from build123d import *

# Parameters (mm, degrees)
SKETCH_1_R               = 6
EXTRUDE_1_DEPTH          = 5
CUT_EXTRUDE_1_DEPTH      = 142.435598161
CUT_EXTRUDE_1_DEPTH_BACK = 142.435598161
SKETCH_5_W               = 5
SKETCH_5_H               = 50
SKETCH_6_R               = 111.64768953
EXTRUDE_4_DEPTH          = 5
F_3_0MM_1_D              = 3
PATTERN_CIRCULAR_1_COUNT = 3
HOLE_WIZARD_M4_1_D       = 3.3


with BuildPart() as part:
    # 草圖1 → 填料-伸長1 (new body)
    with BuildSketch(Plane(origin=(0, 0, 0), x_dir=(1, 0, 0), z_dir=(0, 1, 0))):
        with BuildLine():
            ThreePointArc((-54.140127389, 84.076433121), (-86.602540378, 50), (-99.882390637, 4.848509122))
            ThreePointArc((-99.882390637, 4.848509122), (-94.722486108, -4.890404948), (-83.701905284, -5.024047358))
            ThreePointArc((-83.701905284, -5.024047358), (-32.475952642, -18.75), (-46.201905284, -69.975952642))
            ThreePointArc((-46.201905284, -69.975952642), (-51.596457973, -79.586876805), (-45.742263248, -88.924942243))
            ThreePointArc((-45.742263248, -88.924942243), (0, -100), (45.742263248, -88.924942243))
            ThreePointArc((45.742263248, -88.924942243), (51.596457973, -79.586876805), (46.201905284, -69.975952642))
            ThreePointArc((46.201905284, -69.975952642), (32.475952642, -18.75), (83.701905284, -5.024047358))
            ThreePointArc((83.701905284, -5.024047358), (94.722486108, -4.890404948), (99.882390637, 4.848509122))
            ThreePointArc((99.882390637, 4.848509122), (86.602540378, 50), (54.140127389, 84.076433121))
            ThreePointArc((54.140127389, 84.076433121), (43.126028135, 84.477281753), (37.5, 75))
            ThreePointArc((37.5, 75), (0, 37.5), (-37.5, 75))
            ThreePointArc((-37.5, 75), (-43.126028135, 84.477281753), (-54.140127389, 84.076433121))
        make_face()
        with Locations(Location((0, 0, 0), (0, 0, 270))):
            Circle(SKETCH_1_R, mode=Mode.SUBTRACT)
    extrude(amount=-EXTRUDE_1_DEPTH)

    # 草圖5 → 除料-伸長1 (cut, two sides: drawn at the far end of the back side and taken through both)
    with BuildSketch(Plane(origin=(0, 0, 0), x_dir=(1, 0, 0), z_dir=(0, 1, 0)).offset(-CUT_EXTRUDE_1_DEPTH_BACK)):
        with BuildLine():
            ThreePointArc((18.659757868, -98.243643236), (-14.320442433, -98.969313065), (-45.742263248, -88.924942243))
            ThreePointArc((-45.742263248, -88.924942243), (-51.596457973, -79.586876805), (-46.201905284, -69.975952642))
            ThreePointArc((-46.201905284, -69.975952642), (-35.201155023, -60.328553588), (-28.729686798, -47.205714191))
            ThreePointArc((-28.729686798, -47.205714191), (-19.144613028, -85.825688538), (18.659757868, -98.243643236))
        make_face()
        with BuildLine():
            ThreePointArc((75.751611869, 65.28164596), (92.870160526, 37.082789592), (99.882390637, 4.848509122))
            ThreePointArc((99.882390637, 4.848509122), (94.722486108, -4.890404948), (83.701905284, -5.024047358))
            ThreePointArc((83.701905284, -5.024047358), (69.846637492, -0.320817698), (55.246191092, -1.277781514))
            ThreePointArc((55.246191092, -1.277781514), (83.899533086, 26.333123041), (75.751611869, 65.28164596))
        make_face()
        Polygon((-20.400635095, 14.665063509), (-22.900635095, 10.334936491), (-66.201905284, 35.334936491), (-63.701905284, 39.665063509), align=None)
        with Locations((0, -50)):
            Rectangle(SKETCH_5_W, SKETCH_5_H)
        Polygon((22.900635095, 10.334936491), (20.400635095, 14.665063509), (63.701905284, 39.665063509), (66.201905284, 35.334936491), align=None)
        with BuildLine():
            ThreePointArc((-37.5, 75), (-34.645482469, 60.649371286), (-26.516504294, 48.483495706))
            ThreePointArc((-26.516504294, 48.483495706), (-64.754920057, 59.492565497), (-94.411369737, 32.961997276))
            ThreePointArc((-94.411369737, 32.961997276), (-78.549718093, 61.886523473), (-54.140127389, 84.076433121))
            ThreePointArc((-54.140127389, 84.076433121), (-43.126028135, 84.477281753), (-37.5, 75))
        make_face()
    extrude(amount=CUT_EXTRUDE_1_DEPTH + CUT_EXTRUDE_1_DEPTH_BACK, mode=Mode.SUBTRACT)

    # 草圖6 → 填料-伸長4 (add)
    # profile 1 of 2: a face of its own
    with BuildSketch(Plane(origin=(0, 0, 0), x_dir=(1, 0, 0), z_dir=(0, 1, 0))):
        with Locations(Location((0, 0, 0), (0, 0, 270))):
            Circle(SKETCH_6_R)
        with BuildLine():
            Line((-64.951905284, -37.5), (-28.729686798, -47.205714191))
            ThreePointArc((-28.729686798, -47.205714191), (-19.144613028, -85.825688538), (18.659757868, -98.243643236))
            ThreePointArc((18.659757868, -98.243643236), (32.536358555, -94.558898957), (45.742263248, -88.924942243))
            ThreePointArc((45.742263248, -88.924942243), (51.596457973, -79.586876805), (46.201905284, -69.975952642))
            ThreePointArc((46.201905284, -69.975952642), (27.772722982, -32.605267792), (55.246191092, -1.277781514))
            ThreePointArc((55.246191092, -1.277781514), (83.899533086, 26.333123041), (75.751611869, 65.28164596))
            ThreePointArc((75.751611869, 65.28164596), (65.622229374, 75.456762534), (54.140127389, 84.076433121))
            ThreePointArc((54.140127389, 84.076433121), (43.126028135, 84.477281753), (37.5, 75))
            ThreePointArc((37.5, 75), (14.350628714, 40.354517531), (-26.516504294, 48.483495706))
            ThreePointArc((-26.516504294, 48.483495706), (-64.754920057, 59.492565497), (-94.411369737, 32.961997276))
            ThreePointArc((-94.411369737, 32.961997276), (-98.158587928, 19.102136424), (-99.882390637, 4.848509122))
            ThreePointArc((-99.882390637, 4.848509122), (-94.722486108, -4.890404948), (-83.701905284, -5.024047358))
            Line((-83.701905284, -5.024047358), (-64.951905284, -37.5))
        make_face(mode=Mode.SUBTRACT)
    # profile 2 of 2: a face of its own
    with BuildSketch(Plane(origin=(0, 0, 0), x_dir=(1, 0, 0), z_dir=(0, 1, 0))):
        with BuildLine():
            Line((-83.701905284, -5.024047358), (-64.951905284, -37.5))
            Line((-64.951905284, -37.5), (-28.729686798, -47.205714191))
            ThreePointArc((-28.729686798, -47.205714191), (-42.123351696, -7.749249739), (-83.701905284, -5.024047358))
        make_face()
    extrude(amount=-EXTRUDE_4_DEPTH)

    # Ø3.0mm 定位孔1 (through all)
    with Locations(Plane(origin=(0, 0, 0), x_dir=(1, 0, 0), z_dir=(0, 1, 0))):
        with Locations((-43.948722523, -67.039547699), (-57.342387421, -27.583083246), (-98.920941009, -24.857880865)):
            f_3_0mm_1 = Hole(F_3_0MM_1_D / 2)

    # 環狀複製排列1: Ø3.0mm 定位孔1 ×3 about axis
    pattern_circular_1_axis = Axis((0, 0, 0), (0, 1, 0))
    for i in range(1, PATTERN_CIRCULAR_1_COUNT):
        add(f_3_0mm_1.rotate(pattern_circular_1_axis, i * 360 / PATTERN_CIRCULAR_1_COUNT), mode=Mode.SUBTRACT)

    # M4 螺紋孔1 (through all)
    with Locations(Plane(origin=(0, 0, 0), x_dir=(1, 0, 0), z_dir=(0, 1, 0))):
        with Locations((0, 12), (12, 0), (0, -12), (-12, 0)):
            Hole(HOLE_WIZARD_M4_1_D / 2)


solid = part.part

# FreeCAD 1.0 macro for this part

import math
import FreeCAD as App
import Part
import Sketcher

V = App.Vector
Q = App.Units.Quantity

doc = App.newDocument("Part")
params = doc.addObject("Spreadsheet::Sheet", "Params")
for row, (alias, value) in enumerate([
    ("sketch1_diameter", "12 mm"),
    ("sketch1_radius", "100 mm"),
    ("sketch1_radius2", "37.5 mm"),
    ("pad1_length", "5 mm"),
    ("sketch2_radius", "100 mm"),
    ("sketch2_radius2", "37.5 mm"),
    ("sketch2_width", "5 mm"),
    ("sketch2_height", "50 mm"),
    ("sketch2_length", "5 mm"),
    ("sketch3_radius", "100 mm"),
    ("sketch3_radius2", "37.5 mm"),
    ("sketch3_width", "18.75 mm"),
    ("pad2_length", "5 mm"),
    ("sketch4_diameter", "3 mm"),
    ("hole_diameter", "3 mm"),
    ("sketch5_diameter", "3.3 mm"),
    ("hole2_diameter", "3.3 mm"),
], start=1):
    params.set(f"A{row}", alias)
    params.set(f"B{row}", "=" + value)
    params.setAlias(f"B{row}", alias)

body = doc.addObject("PartDesign::Body", "Body")

sketch1 = doc.addObject("Sketcher::SketchObject", "Sketch")
body.addObject(sketch1)
sketch1.AttachmentSupport = (doc.XZ_Plane, [""])
sketch1.MapMode = "FlatFace"
sketch1.addGeometry([
    Part.ArcOfCircle(Part.Circle(V(0, 0, 0), V(0, 0, 1), 100), math.radians(-177.220919), math.radians(-122.779081)),
    Part.ArcOfCircle(Part.Circle(V(-89.099633, -4.325091, 0), V(0, 0, 1), 10.795455), math.radians(60), math.radians(182.779081)),
    Part.ArcOfCircle(Part.Circle(V(-64.951905, 37.5, 0), V(0, 0, 1), 37.5), math.radians(-120), math.radians(60)),
    Part.ArcOfCircle(Part.Circle(V(-40.804178, 79.325091, 0), V(0, 0, 1), 10.795455), math.radians(117.220919), math.radians(240)),
    Part.ArcOfCircle(Part.Circle(V(0, 0, 0), V(0, 0, 1), 100), math.radians(62.779081), math.radians(117.220919)),
    Part.ArcOfCircle(Part.Circle(V(40.804178, 79.325091, 0), V(0, 0, 1), 10.795455), math.radians(-60), math.radians(62.779081)),
    Part.ArcOfCircle(Part.Circle(V(64.951905, 37.5, 0), V(0, 0, 1), 37.5), math.radians(120), math.radians(300)),
    Part.ArcOfCircle(Part.Circle(V(89.099633, -4.325091, 0), V(0, 0, 1), 10.795455), math.radians(-2.779081), math.radians(120)),
    Part.ArcOfCircle(Part.Circle(V(0, 0, 0), V(0, 0, 1), 100), math.radians(-57.220919), math.radians(-2.779081)),
    Part.ArcOfCircle(Part.Circle(V(48.295455, -75, 0), V(0, 0, 1), 10.795455), math.radians(180), math.radians(302.779081)),
    Part.ArcOfCircle(Part.Circle(V(0, -75, 0), V(0, 0, 1), 37.5), math.radians(0), math.radians(180)),
    Part.ArcOfCircle(Part.Circle(V(-48.295455, -75, 0), V(0, 0, 1), 10.795455), math.radians(-122.779081), math.radians(0)),
    Part.Circle(V(0, 0, 0), V(0, 0, 1), 6),
], False)
sketch1.addConstraint([
    Sketcher.Constraint("Tangent", 0, 1, 1, 2),
    Sketcher.Constraint("Tangent", 1, 1, 2, 1),
    Sketcher.Constraint("Tangent", 2, 2, 3, 2),
    Sketcher.Constraint("Tangent", 3, 1, 4, 2),
    Sketcher.Constraint("Tangent", 4, 1, 5, 2),
    Sketcher.Constraint("Tangent", 5, 1, 6, 1),
    Sketcher.Constraint("Tangent", 6, 2, 7, 2),
    Sketcher.Constraint("Tangent", 7, 1, 8, 2),
    Sketcher.Constraint("Tangent", 8, 1, 9, 2),
    Sketcher.Constraint("Tangent", 9, 1, 10, 1),
    Sketcher.Constraint("Tangent", 10, 2, 11, 2),
    Sketcher.Constraint("Tangent", 11, 1, 0, 2),
    Sketcher.Constraint("Coincident", 0, 3, -1, 1),
    Sketcher.Constraint("Coincident", 4, 3, -1, 1),
    Sketcher.Constraint("Coincident", 8, 3, -1, 1),
    Sketcher.Constraint("Coincident", 12, 3, -1, 1),
    Sketcher.Constraint("Equal", 1, 3),
    Sketcher.Constraint("Equal", 0, 4),
    Sketcher.Constraint("Equal", 3, 5),
    Sketcher.Constraint("Equal", 2, 6),
    Sketcher.Constraint("Equal", 5, 7),
    Sketcher.Constraint("Equal", 4, 8),
    Sketcher.Constraint("Equal", 7, 9),
    Sketcher.Constraint("Equal", 6, 10),
    Sketcher.Constraint("Equal", 9, 11),
    Sketcher.Constraint("Symmetric", 2, 3, 6, 3, -2),
    Sketcher.Constraint("PointOnObject", 10, 3, -2),
    Sketcher.Constraint("Horizontal", 9, 3, 10, 3),
    Sketcher.Constraint("Diameter", 12, 12.0),
    Sketcher.Constraint("Radius", 0, 100.0),
    Sketcher.Constraint("Radius", 2, 37.5),
    Sketcher.Constraint("DistanceY", 9, 3, -1, 1, 75.0),
    Sketcher.Constraint("DistanceY", -1, 1, 2, 3, 37.5),
    Sketcher.Constraint("DistanceX", 1, 1, 2, 2, 37.5),
])
sketch1.setExpression("Constraints[28]", "Params.sketch1_diameter")
sketch1.setExpression("Constraints[29]", "Params.sketch1_radius")
sketch1.setExpression("Constraints[30]", "Params.sketch1_radius2")
pad1 = doc.addObject("PartDesign::Pad", "Pad")
body.addObject(pad1)
pad1.Profile = sketch1
pad1.setExpression("Length", "Params.pad1_length")

sketch2 = doc.addObject("Sketcher::SketchObject", "Sketch001")
body.addObject(sketch2)
sketch2.AttachmentSupport = (doc.XZ_Plane, [""])
sketch2.MapMode = "FlatFace"
sketch2.addGeometry([
    Part.ArcOfCircle(Part.Circle(V(0, 0, 0), V(0, 0, 1), 100), math.radians(79.245711), math.radians(117.220919)),
    Part.ArcOfCircle(Part.Circle(V(10.987241, 57.847833, 0), V(0, 0, 1), 41.117989), math.radians(79.245711), math.radians(195)),
    Part.ArcOfCircle(Part.Circle(V(-64.951905, 37.5, 0), V(0, 0, 1), 37.5), math.radians(15), math.radians(60)),
    Part.ArcOfCircle(Part.Circle(V(-40.804178, 79.325091, 0), V(0, 0, 1), 10.795455), math.radians(117.220919), math.radians(240)),
    Part.ArcOfCircle(Part.Circle(V(0, 0, 0), V(0, 0, 1), 100), math.radians(-40.754289), math.radians(-2.779081)),
    Part.ArcOfCircle(Part.Circle(V(44.604072, -38.439146, 0), V(0, 0, 1), 41.117989), math.radians(-40.754289), math.radians(75)),
    Part.ArcOfCircle(Part.Circle(V(64.951905, 37.5, 0), V(0, 0, 1), 37.5), math.radians(-105), math.radians(-60)),
    Part.ArcOfCircle(Part.Circle(V(89.099633, -4.325091, 0), V(0, 0, 1), 10.795455), math.radians(-2.779081), math.radians(120)),
    Part.LineSegment(V(-22.900635, -10.334936, 0), V(-20.400635, -14.665064, 0)),
    Part.LineSegment(V(-20.400635, -14.665064, 0), V(-63.701905, -39.665064, 0)),
    Part.LineSegment(V(-63.701905, -39.665064, 0), V(-66.201905, -35.334936, 0)),
    Part.LineSegment(V(-66.201905, -35.334936, 0), V(-22.900635, -10.334936, 0)),
    Part.LineSegment(V(-2.5, 25, 0), V(-2.5, 75, 0)),
    Part.LineSegment(V(-2.5, 75, 0), V(2.5, 75, 0)),
    Part.LineSegment(V(2.5, 75, 0), V(2.5, 25, 0)),
    Part.LineSegment(V(2.5, 25, 0), V(-2.5, 25, 0)),
    Part.LineSegment(V(20.400635, -14.665064, 0), V(22.900635, -10.334936, 0)),
    Part.LineSegment(V(22.900635, -10.334936, 0), V(66.201905, -35.334936, 0)),
    Part.LineSegment(V(66.201905, -35.334936, 0), V(63.701905, -39.665064, 0)),
    Part.LineSegment(V(63.701905, -39.665064, 0), V(20.400635, -14.665064, 0)),
    Part.ArcOfCircle(Part.Circle(V(0, -75, 0), V(0, 0, 1), 37.5), math.radians(135), math.radians(180)),
    Part.ArcOfCircle(Part.Circle(V(-48.295455, -75, 0), V(0, 0, 1), 10.795455), math.radians(-122.779081), math.radians(0)),
    Part.ArcOfCircle(Part.Circle(V(0, 0, 0), V(0, 0, 1), 100), math.radians(-160.754289), math.radians(-122.779081)),
    Part.ArcOfCircle(Part.Circle(V(-55.591313, -19.408687, 0), V(0, 0, 1), 41.117989), math.radians(-160.754289), math.radians(-45)),
], False)
sketch2.addConstraint([
    Sketcher.Constraint("Tangent", 0, 1, 1, 1),
    Sketcher.Constraint("Tangent", 1, 2, 2, 1),
    Sketcher.Constraint("Tangent", 2, 2, 3, 2),
    Sketcher.Constraint("Tangent", 3, 1, 0, 2),
    Sketcher.Constraint("Tangent", 4, 1, 5, 1),
    Sketcher.Constraint("Tangent", 5, 2, 6, 1),
    Sketcher.Constraint("Tangent", 6, 2, 7, 2),
    Sketcher.Constraint("Tangent", 7, 1, 4, 2),
    Sketcher.Constraint("Coincident", 8, 2, 9, 1),
    Sketcher.Constraint("Coincident", 9, 2, 10, 1),
    Sketcher.Constraint("Coincident", 10, 2, 11, 1),
    Sketcher.Constraint("Coincident", 11, 2, 8, 1),
    Sketcher.Constraint("Coincident", 12, 2, 13, 1),
    Sketcher.Constraint("Coincident", 13, 2, 14, 1),
    Sketcher.Constraint("Coincident", 14, 2, 15, 1),
    Sketcher.Constraint("Coincident", 15, 2, 12, 1),
    Sketcher.Constraint("Coincident", 16, 2, 17, 1),
    Sketcher.Constraint("Coincident", 17, 2, 18, 1),
    Sketcher.Constraint("Coincident", 18, 2, 19, 1),
    Sketcher.Constraint("Coincident", 19, 2, 16, 1),
    Sketcher.Constraint("Tangent", 20, 2, 21, 2),
    Sketcher.Constraint("Tangent", 21, 1, 22, 2),
    Sketcher.Constraint("Tangent", 22, 1, 23, 1),
    Sketcher.Constraint("Tangent", 23, 2, 20, 1),
    Sketcher.Constraint("Vertical", 12),
    Sketcher.Constraint("Horizontal", 13),
    Sketcher.Constraint("Vertical", 14),
    Sketcher.Constraint("Horizontal", 15),
    Sketcher.Constraint("Coincident", 0, 3, -1, 1),
    Sketcher.Constraint("Coincident", 4, 3, -1, 1),
    Sketcher.Constraint("Coincident", 22, 3, -1, 1),
    Sketcher.Constraint("Equal", 0, 4),
    Sketcher.Constraint("Equal", 1, 5),
    Sketcher.Constraint("Equal", 2, 6),
    Sketcher.Constraint("Equal", 3, 7),
    Sketcher.Constraint("Equal", 6, 20),
    Sketcher.Constraint("Equal", 7, 21),
    Sketcher.Constraint("Equal", 4, 22),
    Sketcher.Constraint("Equal", 5, 23),
    Sketcher.Constraint("Symmetric", 2, 3, 6, 3, -2),
    Sketcher.Constraint("Symmetric", 11, 2, 16, 2, -2),
    Sketcher.Constraint("Symmetric", 10, 2, 17, 2, -2),
    Sketcher.Constraint("Symmetric", 9, 2, 18, 2, -2),
    Sketcher.Constraint("Symmetric", 8, 2, 19, 2, -2),
    Sketcher.Constraint("PointOnObject", 20, 3, -2),
    Sketcher.Constraint("Perpendicular", 8, 9),
    Sketcher.Constraint("Perpendicular", 9, 10),
    Sketcher.Constraint("Perpendicular", 10, 11),
    Sketcher.Constraint("Horizontal", 20, 3, 21, 3),
    Sketcher.Constraint("Radius", 0, 100.0),
    Sketcher.Constraint("Radius", 2, 37.5),
    Sketcher.Constraint("DistanceX", 13, 1, 13, 2, 5.0),
    Sketcher.Constraint("DistanceY", 12, 1, 12, 2, 50.0),
    Sketcher.Constraint("Angle", 8, Q("-60 deg")),
    Sketcher.Constraint("Distance", 8, 5.0),
    Sketcher.Constraint("Distance", 9, 50.0),
    Sketcher.Constraint("DistanceY", 20, 3, -1, 1, 75.0),
    Sketcher.Constraint("DistanceY", -1, 1, 12, 2, 75.0),
    Sketcher.Constraint("DistanceY", -1, 1, 2, 3, 37.5),
    Sketcher.Constraint("DistanceX", 12, 2, -1, 1, 2.5),
    Sketcher.Constraint("DistanceX", 17, 2, 6, 2, 17.5),
    Sketcher.Constraint("Radius", 1, 41.117989),
    Sketcher.Constraint("DistanceX", 2, 3, 2, 2, 18.75),
    Sketcher.Constraint("DistanceY", 10, 2, 23, 3, 15.92625),
])
sketch2.setExpression("Constraints[49]", "Params.sketch2_radius")
sketch2.setExpression("Constraints[50]", "Params.sketch2_radius2")
sketch2.setExpression("Constraints[51]", "Params.sketch2_width")
sketch2.setExpression("Constraints[52]", "Params.sketch2_height")
sketch2.setExpression("Constraints[54]", "Params.sketch2_length")
pocket1 = doc.addObject("PartDesign::Pocket", "Pocket")
body.addObject(pocket1)
pocket1.Profile = sketch2
pocket1.Type = "ThroughAll"
pocket1.Midplane = True

sketch3 = doc.addObject("Sketcher::SketchObject", "Sketch002")
body.addObject(sketch3)
sketch3.AttachmentSupport = (doc.XZ_Plane, [""])
sketch3.MapMode = "FlatFace"
sketch3.addGeometry([
    Part.Circle(V(0, 0, 0), V(0, 0, 1), 111.64769),
    Part.ArcOfCircle(Part.Circle(V(10.987241, 57.847833, 0), V(0, 0, 1), 41.117989), math.radians(79.245711), math.radians(195)),
    Part.ArcOfCircle(Part.Circle(V(-64.951905, 37.5, 0), V(0, 0, 1), 37.5), math.radians(-120), math.radians(15)),
    Part.ArcOfCircle(Part.Circle(V(-89.099633, -4.325091, 0), V(0, 0, 1), 10.795455), math.radians(60), math.radians(182.779081)),
    Part.ArcOfCircle(Part.Circle(V(0, 0, 0), V(0, 0, 1), 100), math.radians(-177.220919), math.radians(-160.754289)),
    Part.ArcOfCircle(Part.Circle(V(-55.591313, -19.408687, 0), V(0, 0, 1), 41.117989), math.radians(-160.754289), math.radians(-45)),
    Part.ArcOfCircle(Part.Circle(V(0, -75, 0), V(0, 0, 1), 37.5), math.radians(0), math.radians(135)),
    Part.ArcOfCircle(Part.Circle(V(48.295455, -75, 0), V(0, 0, 1), 10.795455), math.radians(180), math.radians(302.779081)),
    Part.ArcOfCircle(Part.Circle(V(0, 0, 0), V(0, 0, 1), 100), math.radians(-57.220919), math.radians(-40.754289)),
    Part.ArcOfCircle(Part.Circle(V(44.604072, -38.439146, 0), V(0, 0, 1), 41.117989), math.radians(-40.754289), math.radians(75)),
    Part.ArcOfCircle(Part.Circle(V(64.951905, 37.5, 0), V(0, 0, 1), 37.5), math.radians(120), math.radians(255)),
    Part.ArcOfCircle(Part.Circle(V(40.804178, 79.325091, 0), V(0, 0, 1), 10.795455), math.radians(-60), math.radians(62.779081)),
    Part.ArcOfCircle(Part.Circle(V(0, 0, 0), V(0, 0, 1), 100), math.radians(62.779081), math.radians(79.245711)),
], False)
sketch3.addConstraint([
    Sketcher.Constraint("Tangent", 1, 2, 2, 2),
    Sketcher.Constraint("Tangent", 2, 1, 3, 1),
    Sketcher.Constraint("Tangent", 3, 2, 4, 1),
    Sketcher.Constraint("Tangent", 4, 2, 5, 1),
    Sketcher.Constraint("Tangent", 5, 2, 6, 2),
    Sketcher.Constraint("Tangent", 6, 1, 7, 1),
    Sketcher.Constraint("Tangent", 7, 2, 8, 1),
    Sketcher.Constraint("Tangent", 8, 2, 9, 1),
    Sketcher.Constraint("Tangent", 9, 2, 10, 2),
    Sketcher.Constraint("Tangent", 10, 1, 11, 1),
    Sketcher.Constraint("Tangent", 11, 2, 12, 1),
    Sketcher.Constraint("Tangent", 12, 2, 1, 1),
    Sketcher.Constraint("Coincident", 0, 3, -1, 1),
    Sketcher.Constraint("Coincident", 4, 3, -1, 1),
    Sketcher.Constraint("Coincident", 8, 3, -1, 1),
    Sketcher.Constraint("Coincident", 12, 3, -1, 1),
    Sketcher.Constraint("Equal", 1, 5),
    Sketcher.Constraint("Equal", 2, 6),
    Sketcher.Constraint("Equal", 3, 7),
    Sketcher.Constraint("Equal", 4, 8),
    Sketcher.Constraint("Equal", 5, 9),
    Sketcher.Constraint("Equal", 6, 10),
    Sketcher.Constraint("Equal", 7, 11),
    Sketcher.Constraint("Equal", 8, 12),
    Sketcher.Constraint("Symmetric", 2, 3, 10, 3, -2),
    Sketcher.Constraint("PointOnObject", 6, 3, -2),
    Sketcher.Constraint("Horizontal", 6, 3, 7, 3),
    Sketcher.Constraint("Radius", 4, 100.0),
    Sketcher.Constraint("Radius", 2, 37.5),
    Sketcher.Constraint("DistanceY", 6, 3, -1, 1, 75.0),
    Sketcher.Constraint("DistanceY", -1, 1, 2, 3, 37.5),
    Sketcher.Constraint("Diameter", 0, 223.295379),
    Sketcher.Constraint("Radius", 1, 41.117989),
    Sketcher.Constraint("DistanceX", 2, 1, 2, 3, 18.75),
])
sketch3.setExpression("Constraints[27]", "Params.sketch3_radius")
sketch3.setExpression("Constraints[28]", "Params.sketch3_radius2")
sketch3.setExpression("Constraints[33]", "Params.sketch3_width")
pad2 = doc.addObject("PartDesign::Pad", "Pad001")
body.addObject(pad2)
pad2.Profile = sketch3
pad2.setExpression("Length", "Params.pad2_length")

sketch4 = doc.addObject("Sketcher::SketchObject", "Sketch003")
body.addObject(sketch4)
sketch4.AttachmentSupport = (doc.XZ_Plane, [""])
sketch4.MapMode = "FlatFace"
sketch4.addGeometry([
    Part.Circle(V(-43.948723, 67.039548, 0), V(0, 0, 1), 1.5),
    Part.Circle(V(-57.342387, 27.583083, 0), V(0, 0, 1), 1.5),
    Part.Circle(V(-98.920941, 24.857881, 0), V(0, 0, 1), 1.5),
], False)
sketch4.addConstraint([
    Sketcher.Constraint("Equal", 0, 1),
    Sketcher.Constraint("Equal", 1, 2),
    Sketcher.Constraint("Diameter", 0, 3.0),
    Sketcher.Constraint("DistanceX", 2, 3, -1, 1, 98.920941),
    Sketcher.Constraint("DistanceY", -1, 1, 2, 3, 24.857881),
    Sketcher.Constraint("DistanceX", 2, 3, 0, 3, 54.972218),
    Sketcher.Constraint("DistanceY", -1, 1, 0, 3, 67.039548),
    Sketcher.Constraint("DistanceX", 1, 3, -1, 1, 57.342387),
    Sketcher.Constraint("DistanceY", -1, 1, 1, 3, 27.583083),
])
sketch4.setExpression("Constraints[2]", "Params.sketch4_diameter")
doc.recompute()
hole = doc.addObject("PartDesign::Hole", "Hole")
body.addObject(hole)
hole.Profile = sketch4
hole.ThreadType = "None"
hole.setExpression("Diameter", "Params.hole_diameter")
hole.DepthType = "ThroughAll"
hole.Reversed = True
doc.recompute()

polarpattern = doc.addObject("PartDesign::PolarPattern", "PolarPattern")
body.addObject(polarpattern)
polarpattern.Originals = [hole]
polarpattern.Axis = (doc.Y_Axis, [""])
polarpattern.Angle = 360
polarpattern.Occurrences = 3
body.Tip = polarpattern

sketch5 = doc.addObject("Sketcher::SketchObject", "Sketch004")
body.addObject(sketch5)
sketch5.AttachmentSupport = (doc.XZ_Plane, [""])
sketch5.MapMode = "FlatFace"
sketch5.addGeometry([
    Part.Circle(V(0, -12, 0), V(0, 0, 1), 1.65),
    Part.Circle(V(12, 0, 0), V(0, 0, 1), 1.65),
    Part.Circle(V(0, 12, 0), V(0, 0, 1), 1.65),
    Part.Circle(V(-12, 0, 0), V(0, 0, 1), 1.65),
], False)
sketch5.addConstraint([
    Sketcher.Constraint("Equal", 0, 1),
    Sketcher.Constraint("Equal", 1, 2),
    Sketcher.Constraint("Equal", 2, 3),
    Sketcher.Constraint("Symmetric", 0, 3, 2, 3, -1, 1),
    Sketcher.Constraint("Symmetric", 1, 3, 3, 3, -1, 1),
    Sketcher.Constraint("PointOnObject", 0, 3, -2),
    Sketcher.Constraint("PointOnObject", 1, 3, -1),
    Sketcher.Constraint("Diameter", 0, 3.3),
    Sketcher.Constraint("DistanceY", 0, 3, -1, 1, 12.0),
    Sketcher.Constraint("DistanceX", -1, 1, 1, 3, 12.0),
])
sketch5.setExpression("Constraints[7]", "Params.sketch5_diameter")
doc.recompute()
hole2 = doc.addObject("PartDesign::Hole", "Hole001")
body.addObject(hole2)
hole2.Profile = sketch5
hole2.ThreadType = "None"
hole2.setExpression("Diameter", "Params.hole2_diameter")
hole2.DepthType = "ThroughAll"
hole2.Reversed = True

doc.recompute()
